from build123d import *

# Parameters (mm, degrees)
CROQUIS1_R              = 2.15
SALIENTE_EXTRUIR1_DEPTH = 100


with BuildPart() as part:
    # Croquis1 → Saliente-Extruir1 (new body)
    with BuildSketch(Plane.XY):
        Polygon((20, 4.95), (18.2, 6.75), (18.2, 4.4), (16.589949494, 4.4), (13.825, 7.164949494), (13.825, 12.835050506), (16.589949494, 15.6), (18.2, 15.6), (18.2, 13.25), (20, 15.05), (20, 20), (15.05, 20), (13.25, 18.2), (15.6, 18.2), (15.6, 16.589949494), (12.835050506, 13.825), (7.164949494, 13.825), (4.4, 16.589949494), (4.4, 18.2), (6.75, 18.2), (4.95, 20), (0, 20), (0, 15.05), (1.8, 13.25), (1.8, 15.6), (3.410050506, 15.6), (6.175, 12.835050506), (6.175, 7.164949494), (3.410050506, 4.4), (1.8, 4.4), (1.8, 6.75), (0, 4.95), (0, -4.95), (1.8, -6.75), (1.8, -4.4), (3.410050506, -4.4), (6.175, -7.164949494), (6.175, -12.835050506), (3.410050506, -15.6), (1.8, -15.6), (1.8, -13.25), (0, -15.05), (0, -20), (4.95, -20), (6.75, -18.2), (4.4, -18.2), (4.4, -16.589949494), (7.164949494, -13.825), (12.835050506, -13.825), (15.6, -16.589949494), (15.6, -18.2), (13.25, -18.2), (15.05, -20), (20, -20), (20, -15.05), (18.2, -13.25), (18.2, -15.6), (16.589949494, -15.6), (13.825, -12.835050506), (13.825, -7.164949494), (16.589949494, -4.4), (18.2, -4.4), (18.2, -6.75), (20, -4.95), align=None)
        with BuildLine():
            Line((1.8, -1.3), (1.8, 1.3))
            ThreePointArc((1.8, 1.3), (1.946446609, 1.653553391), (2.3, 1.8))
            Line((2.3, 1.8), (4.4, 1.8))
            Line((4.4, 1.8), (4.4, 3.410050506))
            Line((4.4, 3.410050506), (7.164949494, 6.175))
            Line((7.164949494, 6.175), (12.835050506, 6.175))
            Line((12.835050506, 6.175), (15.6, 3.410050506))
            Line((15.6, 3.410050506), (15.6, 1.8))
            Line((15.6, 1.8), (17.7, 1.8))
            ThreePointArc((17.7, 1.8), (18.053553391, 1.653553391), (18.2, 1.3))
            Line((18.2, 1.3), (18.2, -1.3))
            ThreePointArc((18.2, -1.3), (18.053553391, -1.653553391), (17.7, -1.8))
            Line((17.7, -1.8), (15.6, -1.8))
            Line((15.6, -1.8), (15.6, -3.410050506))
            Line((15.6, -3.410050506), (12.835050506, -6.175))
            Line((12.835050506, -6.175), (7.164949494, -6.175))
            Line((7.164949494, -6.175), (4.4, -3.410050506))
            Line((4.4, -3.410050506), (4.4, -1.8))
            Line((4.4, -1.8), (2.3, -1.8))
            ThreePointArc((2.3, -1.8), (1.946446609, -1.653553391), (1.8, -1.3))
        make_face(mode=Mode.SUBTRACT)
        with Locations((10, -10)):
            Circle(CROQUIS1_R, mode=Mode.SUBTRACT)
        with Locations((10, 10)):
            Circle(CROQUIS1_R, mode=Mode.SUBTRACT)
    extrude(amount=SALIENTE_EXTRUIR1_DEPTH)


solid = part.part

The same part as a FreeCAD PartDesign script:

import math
import FreeCAD as App
import Part
import Sketcher

V = App.Vector
Q = App.Units.Quantity

doc = App.newDocument("Part")
params = doc.addObject("Spreadsheet::Sheet", "Params")
for row, (alias, value) in enumerate([
    ("sketch1_diameter", "4.3 mm"),
    ("sketch1_radius", "0.5 mm"),
    ("sketch1_width", "2.1 mm"),
    ("sketch1_height", "9.9 mm"),
    ("sketch1_height2", "2.6 mm"),
    ("pad1_length", "100 mm"),
], start=1):
    params.set(f"A{row}", alias)
    params.set(f"B{row}", "=" + value)
    params.setAlias(f"B{row}", alias)

body = doc.addObject("PartDesign::Body", "Body")

# Sketch on XY plane
sketch1 = doc.addObject("Sketcher::SketchObject", "Sketch")
body.addObject(sketch1)
sketch1.AttachmentSupport = (doc.XY_Plane, [""])
sketch1.MapMode = "FlatFace"
sketch1.addGeometry([
    Part.LineSegment(V(20, 4.95, 0), V(18.2, 6.75, 0)),  # 0
    Part.LineSegment(V(18.2, 6.75, 0), V(18.2, 4.4, 0)),  # 1
    Part.LineSegment(V(18.2, 4.4, 0), V(16.59, 4.4, 0)),  # 2
    Part.LineSegment(V(16.59, 4.4, 0), V(13.82, 7.16, 0)),  # 3
    Part.LineSegment(V(13.82, 7.16, 0), V(13.82, 12.84, 0)),  # 4
    Part.LineSegment(V(13.82, 12.84, 0), V(16.59, 15.6, 0)),  # 5
    Part.LineSegment(V(16.59, 15.6, 0), V(18.2, 15.6, 0)),  # 6
    Part.LineSegment(V(18.2, 15.6, 0), V(18.2, 13.25, 0)),  # 7
    Part.LineSegment(V(18.2, 13.25, 0), V(20, 15.05, 0)),  # 8
    Part.LineSegment(V(20, 15.05, 0), V(20, 20, 0)),  # 9
    Part.LineSegment(V(20, 20, 0), V(15.05, 20, 0)),  # 10
    Part.LineSegment(V(15.05, 20, 0), V(13.25, 18.2, 0)),  # 11
    Part.LineSegment(V(13.25, 18.2, 0), V(15.6, 18.2, 0)),  # 12
    Part.LineSegment(V(15.6, 18.2, 0), V(15.6, 16.59, 0)),  # 13
    Part.LineSegment(V(15.6, 16.59, 0), V(12.84, 13.82, 0)),  # 14
    Part.LineSegment(V(12.84, 13.82, 0), V(7.16, 13.82, 0)),  # 15
    Part.LineSegment(V(7.16, 13.82, 0), V(4.4, 16.59, 0)),  # 16
    Part.LineSegment(V(4.4, 16.59, 0), V(4.4, 18.2, 0)),  # 17
    Part.LineSegment(V(4.4, 18.2, 0), V(6.75, 18.2, 0)),  # 18
    Part.LineSegment(V(6.75, 18.2, 0), V(4.95, 20, 0)),  # 19
    Part.LineSegment(V(4.95, 20, 0), V(0, 20, 0)),  # 20
    Part.LineSegment(V(0, 20, 0), V(0, 15.05, 0)),  # 21
    Part.LineSegment(V(0, 15.05, 0), V(1.8, 13.25, 0)),  # 22
    Part.LineSegment(V(1.8, 13.25, 0), V(1.8, 15.6, 0)),  # 23
    Part.LineSegment(V(1.8, 15.6, 0), V(3.41, 15.6, 0)),  # 24
    Part.LineSegment(V(3.41, 15.6, 0), V(6.17, 12.84, 0)),  # 25
    Part.LineSegment(V(6.17, 12.84, 0), V(6.17, 7.16, 0)),  # 26
    Part.LineSegment(V(6.17, 7.16, 0), V(3.41, 4.4, 0)),  # 27
    Part.LineSegment(V(3.41, 4.4, 0), V(1.8, 4.4, 0)),  # 28
    Part.LineSegment(V(1.8, 4.4, 0), V(1.8, 6.75, 0)),  # 29
    Part.LineSegment(V(1.8, 6.75, 0), V(0, 4.95, 0)),  # 30
    Part.LineSegment(V(0, 4.95, 0), V(0, -4.95, 0)),  # 31
    Part.LineSegment(V(0, -4.95, 0), V(1.8, -6.75, 0)),  # 32
    Part.LineSegment(V(1.8, -6.75, 0), V(1.8, -4.4, 0)),  # 33
    Part.LineSegment(V(1.8, -4.4, 0), V(3.41, -4.4, 0)),  # 34
    Part.LineSegment(V(3.41, -4.4, 0), V(6.17, -7.16, 0)),  # 35
    Part.LineSegment(V(6.17, -7.16, 0), V(6.17, -12.84, 0)),  # 36
    Part.LineSegment(V(6.17, -12.84, 0), V(3.41, -15.6, 0)),  # 37
    Part.LineSegment(V(3.41, -15.6, 0), V(1.8, -15.6, 0)),  # 38
    Part.LineSegment(V(1.8, -15.6, 0), V(1.8, -13.25, 0)),  # 39
    Part.LineSegment(V(1.8, -13.25, 0), V(0, -15.05, 0)),  # 40
    Part.LineSegment(V(0, -15.05, 0), V(0, -20, 0)),  # 41
    Part.LineSegment(V(0, -20, 0), V(4.95, -20, 0)),  # 42
    Part.LineSegment(V(4.95, -20, 0), V(6.75, -18.2, 0)),  # 43
    Part.LineSegment(V(6.75, -18.2, 0), V(4.4, -18.2, 0)),  # 44
    Part.LineSegment(V(4.4, -18.2, 0), V(4.4, -16.59, 0)),  # 45
    Part.LineSegment(V(4.4, -16.59, 0), V(7.16, -13.82, 0)),  # 46
    Part.LineSegment(V(7.16, -13.82, 0), V(12.84, -13.82, 0)),  # 47
    Part.LineSegment(V(12.84, -13.82, 0), V(15.6, -16.59, 0)),  # 48
    Part.LineSegment(V(15.6, -16.59, 0), V(15.6, -18.2, 0)),  # 49
    Part.LineSegment(V(15.6, -18.2, 0), V(13.25, -18.2, 0)),  # 50
    Part.LineSegment(V(13.25, -18.2, 0), V(15.05, -20, 0)),  # 51
    Part.LineSegment(V(15.05, -20, 0), V(20, -20, 0)),  # 52
    Part.LineSegment(V(20, -20, 0), V(20, -15.05, 0)),  # 53
    Part.LineSegment(V(20, -15.05, 0), V(18.2, -13.25, 0)),  # 54
    Part.LineSegment(V(18.2, -13.25, 0), V(18.2, -15.6, 0)),  # 55
    Part.LineSegment(V(18.2, -15.6, 0), V(16.59, -15.6, 0)),  # 56
    Part.LineSegment(V(16.59, -15.6, 0), V(13.82, -12.84, 0)),  # 57
    Part.LineSegment(V(13.82, -12.84, 0), V(13.82, -7.16, 0)),  # 58
    Part.LineSegment(V(13.82, -7.16, 0), V(16.59, -4.4, 0)),  # 59
    Part.LineSegment(V(16.59, -4.4, 0), V(18.2, -4.4, 0)),  # 60
    Part.LineSegment(V(18.2, -4.4, 0), V(18.2, -6.75, 0)),  # 61
    Part.LineSegment(V(18.2, -6.75, 0), V(20, -4.95, 0)),  # 62
    Part.LineSegment(V(20, -4.95, 0), V(20, 4.95, 0)),  # 63
    Part.Circle(V(10, -10, 0), V(0, 0, 1), 2.15),  # 64
    Part.ArcOfCircle(Part.Circle(V(2.3, -1.3, 0), V(0, 0, 1), 0.5), math.radians(180), math.radians(270)),  # 65
    Part.LineSegment(V(1.8, -1.3, 0), V(1.8, 1.3, 0)),  # 66
    Part.ArcOfCircle(Part.Circle(V(2.3, 1.3, 0), V(0, 0, 1), 0.5), math.radians(90), math.radians(180)),  # 67
    Part.LineSegment(V(2.3, 1.8, 0), V(4.4, 1.8, 0)),  # 68
    Part.LineSegment(V(4.4, 1.8, 0), V(4.4, 3.41, 0)),  # 69
    Part.LineSegment(V(4.4, 3.41, 0), V(7.16, 6.17, 0)),  # 70
    Part.LineSegment(V(7.16, 6.17, 0), V(12.84, 6.17, 0)),  # 71
    Part.LineSegment(V(12.84, 6.17, 0), V(15.6, 3.41, 0)),  # 72
    Part.LineSegment(V(15.6, 3.41, 0), V(15.6, 1.8, 0)),  # 73
    Part.LineSegment(V(15.6, 1.8, 0), V(17.7, 1.8, 0)),  # 74
    Part.ArcOfCircle(Part.Circle(V(17.7, 1.3, 0), V(0, 0, 1), 0.5), math.radians(0), math.radians(90)),  # 75
    Part.LineSegment(V(18.2, 1.3, 0), V(18.2, -1.3, 0)),  # 76
    Part.ArcOfCircle(Part.Circle(V(17.7, -1.3, 0), V(0, 0, 1), 0.5), math.radians(-90), math.radians(0)),  # 77
    Part.LineSegment(V(17.7, -1.8, 0), V(15.6, -1.8, 0)),  # 78
    Part.LineSegment(V(15.6, -1.8, 0), V(15.6, -3.41, 0)),  # 79
    Part.LineSegment(V(15.6, -3.41, 0), V(12.84, -6.17, 0)),  # 80
    Part.LineSegment(V(12.84, -6.17, 0), V(7.16, -6.17, 0)),  # 81
    Part.LineSegment(V(7.16, -6.17, 0), V(4.4, -3.41, 0)),  # 82
    Part.LineSegment(V(4.4, -3.41, 0), V(4.4, -1.8, 0)),  # 83
    Part.LineSegment(V(4.4, -1.8, 0), V(2.3, -1.8, 0)),  # 84
    Part.Circle(V(10, 10, 0), V(0, 0, 1), 2.15),  # 85
], False)
sketch1.addConstraint([
    Sketcher.Constraint("Coincident", 0, 2, 1, 1),
    Sketcher.Constraint("Coincident", 1, 2, 2, 1),
    Sketcher.Constraint("Coincident", 2, 2, 3, 1),
    Sketcher.Constraint("Coincident", 3, 2, 4, 1),
    Sketcher.Constraint("Coincident", 4, 2, 5, 1),
    Sketcher.Constraint("Coincident", 5, 2, 6, 1),
    Sketcher.Constraint("Coincident", 6, 2, 7, 1),
    Sketcher.Constraint("Coincident", 7, 2, 8, 1),
    Sketcher.Constraint("Coincident", 8, 2, 9, 1),
    Sketcher.Constraint("Coincident", 9, 2, 10, 1),
    Sketcher.Constraint("Coincident", 10, 2, 11, 1),
    Sketcher.Constraint("Coincident", 11, 2, 12, 1),
    Sketcher.Constraint("Coincident", 12, 2, 13, 1),
    Sketcher.Constraint("Coincident", 13, 2, 14, 1),
    Sketcher.Constraint("Coincident", 14, 2, 15, 1),
    Sketcher.Constraint("Coincident", 15, 2, 16, 1),
    Sketcher.Constraint("Coincident", 16, 2, 17, 1),
    Sketcher.Constraint("Coincident", 17, 2, 18, 1),
    Sketcher.Constraint("Coincident", 18, 2, 19, 1),
    Sketcher.Constraint("Coincident", 19, 2, 20, 1),
    Sketcher.Constraint("Coincident", 20, 2, 21, 1),
    Sketcher.Constraint("Coincident", 21, 2, 22, 1),
    Sketcher.Constraint("Coincident", 22, 2, 23, 1),
    Sketcher.Constraint("Coincident", 23, 2, 24, 1),
    Sketcher.Constraint("Coincident", 24, 2, 25, 1),
    Sketcher.Constraint("Coincident", 25, 2, 26, 1),
    Sketcher.Constraint("Coincident", 26, 2, 27, 1),
    Sketcher.Constraint("Coincident", 27, 2, 28, 1),
    Sketcher.Constraint("Coincident", 28, 2, 29, 1),
    Sketcher.Constraint("Coincident", 29, 2, 30, 1),
    Sketcher.Constraint("Coincident", 30, 2, 31, 1),
    Sketcher.Constraint("Coincident", 31, 2, 32, 1),
    Sketcher.Constraint("Coincident", 32, 2, 33, 1),
    Sketcher.Constraint("Coincident", 33, 2, 34, 1),
    Sketcher.Constraint("Coincident", 34, 2, 35, 1),
    Sketcher.Constraint("Coincident", 35, 2, 36, 1),
    Sketcher.Constraint("Coincident", 36, 2, 37, 1),
    Sketcher.Constraint("Coincident", 37, 2, 38, 1),
    Sketcher.Constraint("Coincident", 38, 2, 39, 1),
    Sketcher.Constraint("Coincident", 39, 2, 40, 1),
    Sketcher.Constraint("Coincident", 40, 2, 41, 1),
    Sketcher.Constraint("Coincident", 41, 2, 42, 1),
    Sketcher.Constraint("Coincident", 42, 2, 43, 1),
    Sketcher.Constraint("Coincident", 43, 2, 44, 1),
    Sketcher.Constraint("Coincident", 44, 2, 45, 1),
    Sketcher.Constraint("Coincident", 45, 2, 46, 1),
    Sketcher.Constraint("Coincident", 46, 2, 47, 1),
    Sketcher.Constraint("Coincident", 47, 2, 48, 1),
    Sketcher.Constraint("Coincident", 48, 2, 49, 1),
    Sketcher.Constraint("Coincident", 49, 2, 50, 1),
    Sketcher.Constraint("Coincident", 50, 2, 51, 1),
    Sketcher.Constraint("Coincident", 51, 2, 52, 1),
    Sketcher.Constraint("Coincident", 52, 2, 53, 1),
    Sketcher.Constraint("Coincident", 53, 2, 54, 1),
    Sketcher.Constraint("Coincident", 54, 2, 55, 1),
    Sketcher.Constraint("Coincident", 55, 2, 56, 1),
    Sketcher.Constraint("Coincident", 56, 2, 57, 1),
    Sketcher.Constraint("Coincident", 57, 2, 58, 1),
    Sketcher.Constraint("Coincident", 58, 2, 59, 1),
    Sketcher.Constraint("Coincident", 59, 2, 60, 1),
    Sketcher.Constraint("Coincident", 60, 2, 61, 1),
    Sketcher.Constraint("Coincident", 61, 2, 62, 1),
    Sketcher.Constraint("Coincident", 62, 2, 63, 1),
    Sketcher.Constraint("Coincident", 63, 2, 0, 1),
    Sketcher.Constraint("Tangent", 65, 1, 66, 1),
    Sketcher.Constraint("Tangent", 66, 2, 67, 2),
    Sketcher.Constraint("Tangent", 67, 1, 68, 1),
    Sketcher.Constraint("Coincident", 68, 2, 69, 1),
    Sketcher.Constraint("Coincident", 69, 2, 70, 1),
    Sketcher.Constraint("Coincident", 70, 2, 71, 1),
    Sketcher.Constraint("Coincident", 71, 2, 72, 1),
    Sketcher.Constraint("Coincident", 72, 2, 73, 1),
    Sketcher.Constraint("Coincident", 73, 2, 74, 1),
    Sketcher.Constraint("Tangent", 74, 2, 75, 2),
    Sketcher.Constraint("Tangent", 75, 1, 76, 1),
    Sketcher.Constraint("Tangent", 76, 2, 77, 2),
    Sketcher.Constraint("Tangent", 77, 1, 78, 1),
    Sketcher.Constraint("Coincident", 78, 2, 79, 1),
    Sketcher.Constraint("Coincident", 79, 2, 80, 1),
    Sketcher.Constraint("Coincident", 80, 2, 81, 1),
    Sketcher.Constraint("Coincident", 81, 2, 82, 1),
    Sketcher.Constraint("Coincident", 82, 2, 83, 1),
    Sketcher.Constraint("Coincident", 83, 2, 84, 1),
    Sketcher.Constraint("Tangent", 84, 2, 65, 2),
    Sketcher.Constraint("Vertical", 1),
    Sketcher.Constraint("Horizontal", 2),
    Sketcher.Constraint("Vertical", 4),
    Sketcher.Constraint("Horizontal", 6),
    Sketcher.Constraint("Vertical", 7),
    Sketcher.Constraint("Vertical", 9),
    Sketcher.Constraint("Horizontal", 10),
    Sketcher.Constraint("Horizontal", 12),
    Sketcher.Constraint("Vertical", 13),
    Sketcher.Constraint("Horizontal", 15),
    Sketcher.Constraint("Vertical", 17),
    Sketcher.Constraint("Horizontal", 18),
    Sketcher.Constraint("Horizontal", 20),
    Sketcher.Constraint("Vertical", 21),
    Sketcher.Constraint("Vertical", 23),
    Sketcher.Constraint("Horizontal", 24),
    Sketcher.Constraint("Vertical", 26),
    Sketcher.Constraint("Horizontal", 28),
    Sketcher.Constraint("Vertical", 29),
    Sketcher.Constraint("Vertical", 31),
    Sketcher.Constraint("Vertical", 33),
    Sketcher.Constraint("Horizontal", 34),
    Sketcher.Constraint("Vertical", 36),
    Sketcher.Constraint("Horizontal", 38),
    Sketcher.Constraint("Vertical", 39),
    Sketcher.Constraint("Vertical", 41),
    Sketcher.Constraint("Horizontal", 42),
    Sketcher.Constraint("Horizontal", 44),
    Sketcher.Constraint("Vertical", 45),
    Sketcher.Constraint("Horizontal", 47),
    Sketcher.Constraint("Vertical", 49),
    Sketcher.Constraint("Horizontal", 50),
    Sketcher.Constraint("Horizontal", 52),
    Sketcher.Constraint("Vertical", 53),
    Sketcher.Constraint("Vertical", 55),
    Sketcher.Constraint("Horizontal", 56),
    Sketcher.Constraint("Vertical", 58),
    Sketcher.Constraint("Horizontal", 60),
    Sketcher.Constraint("Vertical", 61),
    Sketcher.Constraint("Vertical", 63),
    Sketcher.Constraint("Vertical", 66),
    Sketcher.Constraint("Horizontal", 68),
    Sketcher.Constraint("Vertical", 69),
    Sketcher.Constraint("Horizontal", 71),
    Sketcher.Constraint("Vertical", 73),
    Sketcher.Constraint("Horizontal", 74),
    Sketcher.Constraint("Vertical", 76),
    Sketcher.Constraint("Horizontal", 78),
    Sketcher.Constraint("Vertical", 79),
    Sketcher.Constraint("Horizontal", 81),
    Sketcher.Constraint("Vertical", 83),
    Sketcher.Constraint("Horizontal", 84),
    Sketcher.Constraint("Equal", 65, 67),
    Sketcher.Constraint("Equal", 67, 75),
    Sketcher.Constraint("Equal", 75, 77),
    Sketcher.Constraint("Equal", 64, 85),
    Sketcher.Constraint("Symmetric", 30, 2, 31, 2, -1, 1),
    Sketcher.Constraint("Symmetric", 21, 2, 40, 2, -1, 1),
    Sketcher.Constraint("Symmetric", 64, 3, 85, 3, -1),
    Sketcher.Constraint("Symmetric", 29, 2, 32, 2, -1),
    Sketcher.Constraint("Symmetric", 27, 2, 34, 2, -1),
    Sketcher.Constraint("Symmetric", 26, 2, 35, 2, -1),
    Sketcher.Constraint("Symmetric", 24, 2, 37, 2, -1),
    Sketcher.Constraint("Symmetric", 22, 2, 39, 2, -1),
    Sketcher.Constraint("Symmetric", 20, 2, 41, 2, -1),
    Sketcher.Constraint("Symmetric", 18, 2, 43, 2, -1),
    Sketcher.Constraint("Symmetric", 16, 2, 45, 2, -1),
    Sketcher.Constraint("Symmetric", 15, 2, 46, 2, -1),
    Sketcher.Constraint("Symmetric", 13, 2, 48, 2, -1),
    Sketcher.Constraint("Symmetric", 11, 2, 50, 2, -1),
    Sketcher.Constraint("Symmetric", 10, 2, 51, 2, -1),
    Sketcher.Constraint("Symmetric", 8, 2, 53, 2, -1),
    Sketcher.Constraint("Symmetric", 7, 2, 54, 2, -1),
    Sketcher.Constraint("Symmetric", 5, 2, 56, 2, -1),
    Sketcher.Constraint("Symmetric", 4, 2, 57, 2, -1),
    Sketcher.Constraint("Symmetric", 2, 2, 59, 2, -1),
    Sketcher.Constraint("Symmetric", 0, 2, 61, 2, -1),
    Sketcher.Constraint("Symmetric", 73, 2, 78, 2, -1),
    Sketcher.Constraint("Symmetric", 71, 2, 80, 2, -1),
    Sketcher.Constraint("Symmetric", 69, 2, 82, 2, -1),
    Sketcher.Constraint("Parallel", 0, 3),
    Sketcher.Constraint("Perpendicular", 3, 5),
    Sketcher.Constraint("Parallel", 5, 8),
    Sketcher.Constraint("Parallel", 8, 11),
    Sketcher.Constraint("Parallel", 11, 14),
    Sketcher.Constraint("Perpendicular", 14, 16),
    Sketcher.Constraint("Parallel", 16, 19),
    Sketcher.Constraint("Parallel", 19, 22),
    Sketcher.Constraint("Parallel", 22, 25),
    Sketcher.Constraint("Perpendicular", 25, 27),
    Sketcher.Constraint("Parallel", 27, 30),
    Sketcher.Constraint("Perpendicular", 30, 32),
    Sketcher.Constraint("Perpendicular", 35, 37),
    Sketcher.Constraint("Parallel", 40, 43),
    Sketcher.Constraint("Perpendicular", 46, 48),
    Sketcher.Constraint("Perpendicular", 57, 59),
    Sketcher.Constraint("Parallel", 59, 62),
    Sketcher.Constraint("Parallel", 62, 70),
    Sketcher.Constraint("Perpendicular", 70, 72),
    Sketcher.Constraint("Perpendicular", 72, 80),
    Sketcher.Constraint("Perpendicular", 80, 82),
    Sketcher.Constraint("Horizontal", 67, 3, 75, 3),
    Sketcher.Constraint("Horizontal", 65, 3, 77, 3),
    Sketcher.Constraint("Horizontal", 13, 2, 16, 2),
    Sketcher.Constraint("Horizontal", 12, 2, 17, 2),
    Sketcher.Constraint("Horizontal", 10, 2, 19, 2),
    Sketcher.Constraint("Horizontal", 8, 2, 21, 2),
    Sketcher.Constraint("Horizontal", 7, 2, 22, 2),
    Sketcher.Constraint("Horizontal", 6, 2, 23, 2),
    Sketcher.Constraint("Horizontal", 4, 2, 25, 2),
    Sketcher.Constraint("Horizontal", 3, 2, 26, 2),
    Sketcher.Constraint("Horizontal", 2, 2, 27, 2),
    Sketcher.Constraint("Horizontal", 0, 2, 29, 2),
    Sketcher.Constraint("Horizontal", 31, 2, 62, 2),
    Sketcher.Constraint("Horizontal", 69, 2, 72, 2),
    Sketcher.Constraint("Vertical", 2, 2, 5, 2),
    Sketcher.Constraint("Vertical", 1, 2, 6, 2),
    Sketcher.Constraint("Vertical", 23, 2, 28, 2),
    Sketcher.Constraint("Vertical", 39, 2, 65, 1),
    Sketcher.Constraint("Vertical", 45, 2, 68, 2),
    Sketcher.Constraint("Vertical", 46, 2, 70, 2),
    Sketcher.Constraint("Vertical", 47, 2, 71, 2),
    Sketcher.Constraint("Vertical", 61, 2, 75, 1),
    Sketcher.Constraint("Equal", 12, 18),
    Sketcher.Constraint("Equal", 10, 20),
    Sketcher.Constraint("Equal", 6, 24),
    Sketcher.Constraint("Equal", 50, 1),
    Sketcher.Constraint("Equal", 81, 4),
    Sketcher.Constraint("Equal", 1, 7),
    Sketcher.Constraint("Equal", 52, 9),
    Sketcher.Constraint("Equal", 60, 13),
    Sketcher.Constraint("Equal", 49, 69),
    Sketcher.Constraint("Equal", 8, 11),
    Sketcher.Constraint("Equal", 5, 14),
    Sketcher.Constraint("Diameter", 64, Q("4.3 mm")),
    Sketcher.Constraint("Radius", 65, Q("0.5 mm")),
    Sketcher.Constraint("DistanceX", 68, 1, 68, 2, Q("2.1 mm")),
    Sketcher.Constraint("DistanceY", 31, 2, 31, 1, Q("9.9 mm")),
    Sketcher.Constraint("DistanceY", 66, 1, 66, 2, Q("2.6 mm")),
    Sketcher.Constraint("DistanceX", -1, 1, 64, 3, Q("10 mm")),
    Sketcher.Constraint("DistanceY", 64, 3, -1, 1, Q("10 mm")),
    Sketcher.Constraint("DistanceX", -1, 1, 8, 2, Q("20 mm")),
    Sketcher.Constraint("DistanceY", -1, 1, 9, 2, Q("20 mm")),
    Sketcher.Constraint("DistanceX", -1, 1, 65, 3, Q("2.3 mm")),
    Sketcher.Constraint("DistanceX", 15, 2, 15, 1, Q("5.670101 mm")),
    Sketcher.Constraint("DistanceX", -1, 1, 3, 2, Q("13.825 mm")),
])
sketch1.setExpression("Constraints[218]", "Params.sketch1_diameter")
sketch1.setExpression("Constraints[219]", "Params.sketch1_radius")
sketch1.setExpression("Constraints[220]", "Params.sketch1_width")
sketch1.setExpression("Constraints[221]", "Params.sketch1_height")
sketch1.setExpression("Constraints[222]", "Params.sketch1_height2")
pad1 = doc.addObject("PartDesign::Pad", "Pad")
body.addObject(pad1)
pad1.Profile = sketch1
pad1.setExpression("Length", "Params.pad1_length")

doc.recompute()
